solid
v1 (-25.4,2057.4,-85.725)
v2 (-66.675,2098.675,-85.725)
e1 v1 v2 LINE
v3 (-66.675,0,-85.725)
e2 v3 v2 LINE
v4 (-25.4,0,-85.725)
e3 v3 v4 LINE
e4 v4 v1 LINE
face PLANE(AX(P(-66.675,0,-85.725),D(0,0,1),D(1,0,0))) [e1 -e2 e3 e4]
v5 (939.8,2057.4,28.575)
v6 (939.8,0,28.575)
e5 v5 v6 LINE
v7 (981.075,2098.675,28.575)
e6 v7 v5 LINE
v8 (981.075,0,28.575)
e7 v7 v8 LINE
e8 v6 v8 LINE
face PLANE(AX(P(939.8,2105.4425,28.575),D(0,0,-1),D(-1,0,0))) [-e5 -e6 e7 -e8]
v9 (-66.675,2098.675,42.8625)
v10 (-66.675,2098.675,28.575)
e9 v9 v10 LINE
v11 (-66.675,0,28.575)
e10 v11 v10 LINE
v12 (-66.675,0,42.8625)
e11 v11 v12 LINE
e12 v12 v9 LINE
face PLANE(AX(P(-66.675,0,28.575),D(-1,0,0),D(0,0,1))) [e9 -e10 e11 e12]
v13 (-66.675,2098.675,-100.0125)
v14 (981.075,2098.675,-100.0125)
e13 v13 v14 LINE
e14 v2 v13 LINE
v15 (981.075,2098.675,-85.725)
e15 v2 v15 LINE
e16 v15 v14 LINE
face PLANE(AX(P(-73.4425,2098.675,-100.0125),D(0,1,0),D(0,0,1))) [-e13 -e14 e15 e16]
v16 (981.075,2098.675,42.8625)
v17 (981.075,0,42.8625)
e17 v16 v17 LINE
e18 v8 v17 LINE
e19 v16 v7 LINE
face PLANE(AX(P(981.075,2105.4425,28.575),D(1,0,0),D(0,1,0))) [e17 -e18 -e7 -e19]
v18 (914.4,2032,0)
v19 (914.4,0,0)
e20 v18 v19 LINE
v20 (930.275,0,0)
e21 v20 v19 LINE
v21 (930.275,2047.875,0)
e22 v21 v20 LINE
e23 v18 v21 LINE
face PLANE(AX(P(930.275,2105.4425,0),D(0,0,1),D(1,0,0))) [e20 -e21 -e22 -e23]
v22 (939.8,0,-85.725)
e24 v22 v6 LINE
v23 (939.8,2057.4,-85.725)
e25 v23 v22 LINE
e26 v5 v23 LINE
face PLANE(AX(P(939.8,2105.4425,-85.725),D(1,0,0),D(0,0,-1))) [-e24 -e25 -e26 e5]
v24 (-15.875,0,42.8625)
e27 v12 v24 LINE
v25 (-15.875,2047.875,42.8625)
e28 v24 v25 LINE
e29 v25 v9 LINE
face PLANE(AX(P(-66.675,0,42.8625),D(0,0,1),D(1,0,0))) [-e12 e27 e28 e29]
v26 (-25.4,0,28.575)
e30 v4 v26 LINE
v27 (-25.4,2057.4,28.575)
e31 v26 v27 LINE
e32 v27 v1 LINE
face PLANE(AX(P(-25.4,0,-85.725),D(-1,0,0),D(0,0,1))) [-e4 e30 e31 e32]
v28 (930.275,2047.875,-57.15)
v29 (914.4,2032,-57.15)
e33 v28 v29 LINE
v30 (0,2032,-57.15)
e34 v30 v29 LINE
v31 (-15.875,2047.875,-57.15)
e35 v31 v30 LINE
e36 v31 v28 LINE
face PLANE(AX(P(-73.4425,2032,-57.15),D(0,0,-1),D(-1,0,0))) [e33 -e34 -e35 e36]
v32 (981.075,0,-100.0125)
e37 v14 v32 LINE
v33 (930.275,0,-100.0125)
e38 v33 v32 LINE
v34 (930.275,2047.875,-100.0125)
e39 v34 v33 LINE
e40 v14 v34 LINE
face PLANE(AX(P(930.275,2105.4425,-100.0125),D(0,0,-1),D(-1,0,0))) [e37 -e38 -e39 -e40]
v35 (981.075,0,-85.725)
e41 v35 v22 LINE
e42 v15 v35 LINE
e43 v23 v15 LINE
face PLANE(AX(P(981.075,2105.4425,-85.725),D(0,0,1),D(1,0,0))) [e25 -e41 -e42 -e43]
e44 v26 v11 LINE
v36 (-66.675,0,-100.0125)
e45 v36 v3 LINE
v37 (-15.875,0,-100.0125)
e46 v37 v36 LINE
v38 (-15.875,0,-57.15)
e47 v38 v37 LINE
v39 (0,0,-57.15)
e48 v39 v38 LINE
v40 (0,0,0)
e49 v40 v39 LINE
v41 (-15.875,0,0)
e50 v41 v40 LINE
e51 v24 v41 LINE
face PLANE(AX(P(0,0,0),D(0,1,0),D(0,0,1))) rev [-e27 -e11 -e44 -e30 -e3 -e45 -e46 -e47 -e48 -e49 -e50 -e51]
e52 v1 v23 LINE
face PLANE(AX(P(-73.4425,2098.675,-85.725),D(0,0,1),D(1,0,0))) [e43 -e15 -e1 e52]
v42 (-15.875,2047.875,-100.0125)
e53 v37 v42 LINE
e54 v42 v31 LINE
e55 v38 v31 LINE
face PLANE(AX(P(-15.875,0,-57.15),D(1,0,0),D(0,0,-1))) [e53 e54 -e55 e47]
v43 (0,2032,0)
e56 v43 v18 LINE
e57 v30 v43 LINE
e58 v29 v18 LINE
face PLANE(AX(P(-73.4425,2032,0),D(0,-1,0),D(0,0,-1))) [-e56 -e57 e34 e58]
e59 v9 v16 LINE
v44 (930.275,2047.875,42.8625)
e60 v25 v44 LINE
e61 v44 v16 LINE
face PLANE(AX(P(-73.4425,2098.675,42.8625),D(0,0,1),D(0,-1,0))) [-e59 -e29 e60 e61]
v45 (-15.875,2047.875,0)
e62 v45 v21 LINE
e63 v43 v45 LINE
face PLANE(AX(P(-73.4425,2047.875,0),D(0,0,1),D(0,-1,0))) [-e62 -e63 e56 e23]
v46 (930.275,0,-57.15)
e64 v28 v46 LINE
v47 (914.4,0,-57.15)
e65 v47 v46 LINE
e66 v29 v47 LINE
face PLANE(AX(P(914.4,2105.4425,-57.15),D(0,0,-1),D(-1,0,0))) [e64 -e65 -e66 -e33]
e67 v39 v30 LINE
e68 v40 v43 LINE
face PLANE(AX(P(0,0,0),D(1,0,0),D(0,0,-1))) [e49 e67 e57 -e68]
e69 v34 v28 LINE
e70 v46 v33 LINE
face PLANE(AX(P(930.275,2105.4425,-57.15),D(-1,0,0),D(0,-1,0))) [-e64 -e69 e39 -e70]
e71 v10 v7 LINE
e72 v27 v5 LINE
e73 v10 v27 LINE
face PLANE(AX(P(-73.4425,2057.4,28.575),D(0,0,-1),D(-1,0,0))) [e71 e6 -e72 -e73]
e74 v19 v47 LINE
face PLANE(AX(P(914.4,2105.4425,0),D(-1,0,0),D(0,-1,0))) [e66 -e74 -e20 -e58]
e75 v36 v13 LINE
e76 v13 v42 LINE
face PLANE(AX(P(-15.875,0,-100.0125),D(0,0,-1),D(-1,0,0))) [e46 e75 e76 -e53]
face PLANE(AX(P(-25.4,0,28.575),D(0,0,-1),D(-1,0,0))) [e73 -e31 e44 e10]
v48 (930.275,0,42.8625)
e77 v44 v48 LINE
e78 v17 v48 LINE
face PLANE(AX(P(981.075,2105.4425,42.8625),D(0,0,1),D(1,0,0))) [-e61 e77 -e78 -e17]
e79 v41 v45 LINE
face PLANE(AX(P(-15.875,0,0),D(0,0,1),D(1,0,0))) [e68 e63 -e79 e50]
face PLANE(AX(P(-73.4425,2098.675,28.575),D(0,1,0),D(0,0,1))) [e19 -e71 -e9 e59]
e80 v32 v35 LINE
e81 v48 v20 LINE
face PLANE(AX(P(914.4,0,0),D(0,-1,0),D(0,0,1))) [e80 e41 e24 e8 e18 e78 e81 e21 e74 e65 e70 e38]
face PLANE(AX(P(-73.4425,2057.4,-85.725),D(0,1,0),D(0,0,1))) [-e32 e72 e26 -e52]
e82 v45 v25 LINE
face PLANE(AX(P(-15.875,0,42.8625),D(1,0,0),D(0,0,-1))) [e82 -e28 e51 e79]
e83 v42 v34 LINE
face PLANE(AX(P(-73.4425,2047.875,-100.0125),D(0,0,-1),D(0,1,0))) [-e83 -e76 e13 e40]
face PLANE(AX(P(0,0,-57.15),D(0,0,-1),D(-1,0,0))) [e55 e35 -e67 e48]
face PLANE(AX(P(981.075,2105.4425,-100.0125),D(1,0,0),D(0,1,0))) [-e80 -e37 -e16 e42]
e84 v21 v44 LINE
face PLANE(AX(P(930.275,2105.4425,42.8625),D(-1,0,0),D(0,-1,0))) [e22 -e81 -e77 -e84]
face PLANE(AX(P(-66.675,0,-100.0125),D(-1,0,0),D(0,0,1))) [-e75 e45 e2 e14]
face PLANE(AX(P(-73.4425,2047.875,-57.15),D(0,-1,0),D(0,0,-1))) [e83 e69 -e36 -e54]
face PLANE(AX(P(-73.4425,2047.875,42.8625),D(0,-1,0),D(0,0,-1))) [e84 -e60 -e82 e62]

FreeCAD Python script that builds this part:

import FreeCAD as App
import Part
import Sketcher
Q = App.Units.Quantity


def add_polygon(sketch, points):
    """Adds a closed chain of lines whose ends are joined by coincident constraints."""
    first, n = sketch.GeometryCount, len(points)
    for a, b in zip(points, points[1:] + points[:1]):
        sketch.addGeometry(Part.LineSegment(App.Vector(*a, 0), App.Vector(*b, 0)), False)
    for i in range(n):
        sketch.addConstraint(Sketcher.Constraint("Coincident", first + i, 2, first + (i + 1) % n, 1))

doc = App.newDocument("Part")
params = doc.addObject("Spreadsheet::Sheet", "Params")
for row, (alias, value) in enumerate([
    ("sketch1_width", "2 in"),
    ("sketch1_height", "4.5 in"),
    ("sketch1_height2", "2.25 in"),
    ("sketch1_width2", "0.625 in"),
    ("sketch1_height3", "1.6875 in"),
    ("sketch2_width", "36 in"),
    ("sketch2_height", "80 in"),
], start=1):
    params.set(f"A{row}", alias)
    params.set(f"B{row}", "=" + value)
    params.setAlias(f"B{row}", alias)

body = doc.addObject("PartDesign::Body", "Body")

sketch1 = body.newObject("Sketcher::SketchObject", "Sketch")
sketch1.AttachmentSupport = (doc.getObject("XZ_Plane"), [""])
sketch1.MapMode = "FlatFace"
add_polygon(sketch1, [(0, 0), (0, -57), (-16, -57), (-16, -100), (-67, -100), (-67, -86), (-25, -86), (-25, 29), (-67, 29), (-67, 43), (-16, 43), (-16, 0)])
sketch1.addConstraint(Sketcher.Constraint("Vertical", 0))
sketch1.addConstraint(Sketcher.Constraint("Horizontal", 1))
sketch1.addConstraint(Sketcher.Constraint("Vertical", 2))
sketch1.addConstraint(Sketcher.Constraint("Horizontal", 3))
sketch1.addConstraint(Sketcher.Constraint("Vertical", 4))
sketch1.addConstraint(Sketcher.Constraint("Horizontal", 5))
sketch1.addConstraint(Sketcher.Constraint("Vertical", 6))
sketch1.addConstraint(Sketcher.Constraint("Horizontal", 7))
sketch1.addConstraint(Sketcher.Constraint("Vertical", 8))
sketch1.addConstraint(Sketcher.Constraint("Horizontal", 9))
sketch1.addConstraint(Sketcher.Constraint("Vertical", 10))
sketch1.addConstraint(Sketcher.Constraint("Horizontal", 11))
sketch1.addConstraint(Sketcher.Constraint("Coincident", 11, 2, -1, 1))
sketch1.addConstraint(Sketcher.Constraint("Vertical", 4, 2, 7, 2))
sketch1.addConstraint(Sketcher.Constraint("Vertical", 2, 2, 9, 2))
sketch1.addConstraint(Sketcher.Constraint("Equal", 4, 8))
sketch1.addConstraint(Sketcher.Constraint("Equal", 2, 10))
sketch1.addConstraint(Sketcher.Constraint("DistanceX", 3, 2, 3, 1, Q("2 in")))
sketch1.addConstraint(Sketcher.Constraint("DistanceY", 6, 1, 6, 2, Q("4.5 in")))
sketch1.addConstraint(Sketcher.Constraint("DistanceX", 5, 2, -1, 1, Q("1 in")))
sketch1.addConstraint(Sketcher.Constraint("DistanceY", 0, 2, 0, 1, Q("2.25 in")))
sketch1.addConstraint(Sketcher.Constraint("DistanceX", 1, 2, 1, 1, Q("0.625 in")))
sketch1.addConstraint(Sketcher.Constraint("DistanceY", 2, 2, 2, 1, Q("1.6875 in")))
sketch1.setExpression("Constraints[29]", "Params.sketch1_width")
sketch1.setExpression("Constraints[30]", "Params.sketch1_height")
sketch1.setExpression("Constraints[32]", "Params.sketch1_height2")
sketch1.setExpression("Constraints[33]", "Params.sketch1_width2")
sketch1.setExpression("Constraints[34]", "Params.sketch1_height3")

sketch2 = body.newObject("Sketcher::SketchObject", "Sketch001")
sketch2.AttachmentSupport = (doc.getObject("XY_Plane"), [""])
sketch2.MapMode = "FlatFace"
sketch2.addGeometry(Part.LineSegment(App.Vector(0, 0, 0), App.Vector(0, 2032, 0)), False)
sketch2.addGeometry(Part.LineSegment(App.Vector(0, 2032, 0), App.Vector(914, 2032, 0)), False)
sketch2.addGeometry(Part.LineSegment(App.Vector(914, 2032, 0), App.Vector(914, 0, 0)), False)
sketch2.addConstraint(Sketcher.Constraint("Coincident", 0, 2, 1, 1))
sketch2.addConstraint(Sketcher.Constraint("Coincident", 1, 2, 2, 1))
sketch2.addConstraint(Sketcher.Constraint("Vertical", 0))
sketch2.addConstraint(Sketcher.Constraint("Horizontal", 1))
sketch2.addConstraint(Sketcher.Constraint("Vertical", 2))
sketch2.addConstraint(Sketcher.Constraint("Coincident", 0, 1, -1, 1))
sketch2.addConstraint(Sketcher.Constraint("PointOnObject", 2, 2, -1))
sketch2.addConstraint(Sketcher.Constraint("DistanceX", 1, 1, 1, 2, Q("36 in")))
sketch2.addConstraint(Sketcher.Constraint("DistanceY", 0, 1, 0, 2, Q("80 in")))
sketch2.setExpression("Constraints[7]", "Params.sketch2_width")
sketch2.setExpression("Constraints[8]", "Params.sketch2_height")
doc.recompute()

additivepipe = body.newObject("PartDesign::AdditivePipe", "AdditivePipe")
additivepipe.Profile = sketch1
additivepipe.Spine = (sketch2, ["Edge1", "Edge2", "Edge3"])
additivepipe.Transition = "Right corner"

doc.recompute()
